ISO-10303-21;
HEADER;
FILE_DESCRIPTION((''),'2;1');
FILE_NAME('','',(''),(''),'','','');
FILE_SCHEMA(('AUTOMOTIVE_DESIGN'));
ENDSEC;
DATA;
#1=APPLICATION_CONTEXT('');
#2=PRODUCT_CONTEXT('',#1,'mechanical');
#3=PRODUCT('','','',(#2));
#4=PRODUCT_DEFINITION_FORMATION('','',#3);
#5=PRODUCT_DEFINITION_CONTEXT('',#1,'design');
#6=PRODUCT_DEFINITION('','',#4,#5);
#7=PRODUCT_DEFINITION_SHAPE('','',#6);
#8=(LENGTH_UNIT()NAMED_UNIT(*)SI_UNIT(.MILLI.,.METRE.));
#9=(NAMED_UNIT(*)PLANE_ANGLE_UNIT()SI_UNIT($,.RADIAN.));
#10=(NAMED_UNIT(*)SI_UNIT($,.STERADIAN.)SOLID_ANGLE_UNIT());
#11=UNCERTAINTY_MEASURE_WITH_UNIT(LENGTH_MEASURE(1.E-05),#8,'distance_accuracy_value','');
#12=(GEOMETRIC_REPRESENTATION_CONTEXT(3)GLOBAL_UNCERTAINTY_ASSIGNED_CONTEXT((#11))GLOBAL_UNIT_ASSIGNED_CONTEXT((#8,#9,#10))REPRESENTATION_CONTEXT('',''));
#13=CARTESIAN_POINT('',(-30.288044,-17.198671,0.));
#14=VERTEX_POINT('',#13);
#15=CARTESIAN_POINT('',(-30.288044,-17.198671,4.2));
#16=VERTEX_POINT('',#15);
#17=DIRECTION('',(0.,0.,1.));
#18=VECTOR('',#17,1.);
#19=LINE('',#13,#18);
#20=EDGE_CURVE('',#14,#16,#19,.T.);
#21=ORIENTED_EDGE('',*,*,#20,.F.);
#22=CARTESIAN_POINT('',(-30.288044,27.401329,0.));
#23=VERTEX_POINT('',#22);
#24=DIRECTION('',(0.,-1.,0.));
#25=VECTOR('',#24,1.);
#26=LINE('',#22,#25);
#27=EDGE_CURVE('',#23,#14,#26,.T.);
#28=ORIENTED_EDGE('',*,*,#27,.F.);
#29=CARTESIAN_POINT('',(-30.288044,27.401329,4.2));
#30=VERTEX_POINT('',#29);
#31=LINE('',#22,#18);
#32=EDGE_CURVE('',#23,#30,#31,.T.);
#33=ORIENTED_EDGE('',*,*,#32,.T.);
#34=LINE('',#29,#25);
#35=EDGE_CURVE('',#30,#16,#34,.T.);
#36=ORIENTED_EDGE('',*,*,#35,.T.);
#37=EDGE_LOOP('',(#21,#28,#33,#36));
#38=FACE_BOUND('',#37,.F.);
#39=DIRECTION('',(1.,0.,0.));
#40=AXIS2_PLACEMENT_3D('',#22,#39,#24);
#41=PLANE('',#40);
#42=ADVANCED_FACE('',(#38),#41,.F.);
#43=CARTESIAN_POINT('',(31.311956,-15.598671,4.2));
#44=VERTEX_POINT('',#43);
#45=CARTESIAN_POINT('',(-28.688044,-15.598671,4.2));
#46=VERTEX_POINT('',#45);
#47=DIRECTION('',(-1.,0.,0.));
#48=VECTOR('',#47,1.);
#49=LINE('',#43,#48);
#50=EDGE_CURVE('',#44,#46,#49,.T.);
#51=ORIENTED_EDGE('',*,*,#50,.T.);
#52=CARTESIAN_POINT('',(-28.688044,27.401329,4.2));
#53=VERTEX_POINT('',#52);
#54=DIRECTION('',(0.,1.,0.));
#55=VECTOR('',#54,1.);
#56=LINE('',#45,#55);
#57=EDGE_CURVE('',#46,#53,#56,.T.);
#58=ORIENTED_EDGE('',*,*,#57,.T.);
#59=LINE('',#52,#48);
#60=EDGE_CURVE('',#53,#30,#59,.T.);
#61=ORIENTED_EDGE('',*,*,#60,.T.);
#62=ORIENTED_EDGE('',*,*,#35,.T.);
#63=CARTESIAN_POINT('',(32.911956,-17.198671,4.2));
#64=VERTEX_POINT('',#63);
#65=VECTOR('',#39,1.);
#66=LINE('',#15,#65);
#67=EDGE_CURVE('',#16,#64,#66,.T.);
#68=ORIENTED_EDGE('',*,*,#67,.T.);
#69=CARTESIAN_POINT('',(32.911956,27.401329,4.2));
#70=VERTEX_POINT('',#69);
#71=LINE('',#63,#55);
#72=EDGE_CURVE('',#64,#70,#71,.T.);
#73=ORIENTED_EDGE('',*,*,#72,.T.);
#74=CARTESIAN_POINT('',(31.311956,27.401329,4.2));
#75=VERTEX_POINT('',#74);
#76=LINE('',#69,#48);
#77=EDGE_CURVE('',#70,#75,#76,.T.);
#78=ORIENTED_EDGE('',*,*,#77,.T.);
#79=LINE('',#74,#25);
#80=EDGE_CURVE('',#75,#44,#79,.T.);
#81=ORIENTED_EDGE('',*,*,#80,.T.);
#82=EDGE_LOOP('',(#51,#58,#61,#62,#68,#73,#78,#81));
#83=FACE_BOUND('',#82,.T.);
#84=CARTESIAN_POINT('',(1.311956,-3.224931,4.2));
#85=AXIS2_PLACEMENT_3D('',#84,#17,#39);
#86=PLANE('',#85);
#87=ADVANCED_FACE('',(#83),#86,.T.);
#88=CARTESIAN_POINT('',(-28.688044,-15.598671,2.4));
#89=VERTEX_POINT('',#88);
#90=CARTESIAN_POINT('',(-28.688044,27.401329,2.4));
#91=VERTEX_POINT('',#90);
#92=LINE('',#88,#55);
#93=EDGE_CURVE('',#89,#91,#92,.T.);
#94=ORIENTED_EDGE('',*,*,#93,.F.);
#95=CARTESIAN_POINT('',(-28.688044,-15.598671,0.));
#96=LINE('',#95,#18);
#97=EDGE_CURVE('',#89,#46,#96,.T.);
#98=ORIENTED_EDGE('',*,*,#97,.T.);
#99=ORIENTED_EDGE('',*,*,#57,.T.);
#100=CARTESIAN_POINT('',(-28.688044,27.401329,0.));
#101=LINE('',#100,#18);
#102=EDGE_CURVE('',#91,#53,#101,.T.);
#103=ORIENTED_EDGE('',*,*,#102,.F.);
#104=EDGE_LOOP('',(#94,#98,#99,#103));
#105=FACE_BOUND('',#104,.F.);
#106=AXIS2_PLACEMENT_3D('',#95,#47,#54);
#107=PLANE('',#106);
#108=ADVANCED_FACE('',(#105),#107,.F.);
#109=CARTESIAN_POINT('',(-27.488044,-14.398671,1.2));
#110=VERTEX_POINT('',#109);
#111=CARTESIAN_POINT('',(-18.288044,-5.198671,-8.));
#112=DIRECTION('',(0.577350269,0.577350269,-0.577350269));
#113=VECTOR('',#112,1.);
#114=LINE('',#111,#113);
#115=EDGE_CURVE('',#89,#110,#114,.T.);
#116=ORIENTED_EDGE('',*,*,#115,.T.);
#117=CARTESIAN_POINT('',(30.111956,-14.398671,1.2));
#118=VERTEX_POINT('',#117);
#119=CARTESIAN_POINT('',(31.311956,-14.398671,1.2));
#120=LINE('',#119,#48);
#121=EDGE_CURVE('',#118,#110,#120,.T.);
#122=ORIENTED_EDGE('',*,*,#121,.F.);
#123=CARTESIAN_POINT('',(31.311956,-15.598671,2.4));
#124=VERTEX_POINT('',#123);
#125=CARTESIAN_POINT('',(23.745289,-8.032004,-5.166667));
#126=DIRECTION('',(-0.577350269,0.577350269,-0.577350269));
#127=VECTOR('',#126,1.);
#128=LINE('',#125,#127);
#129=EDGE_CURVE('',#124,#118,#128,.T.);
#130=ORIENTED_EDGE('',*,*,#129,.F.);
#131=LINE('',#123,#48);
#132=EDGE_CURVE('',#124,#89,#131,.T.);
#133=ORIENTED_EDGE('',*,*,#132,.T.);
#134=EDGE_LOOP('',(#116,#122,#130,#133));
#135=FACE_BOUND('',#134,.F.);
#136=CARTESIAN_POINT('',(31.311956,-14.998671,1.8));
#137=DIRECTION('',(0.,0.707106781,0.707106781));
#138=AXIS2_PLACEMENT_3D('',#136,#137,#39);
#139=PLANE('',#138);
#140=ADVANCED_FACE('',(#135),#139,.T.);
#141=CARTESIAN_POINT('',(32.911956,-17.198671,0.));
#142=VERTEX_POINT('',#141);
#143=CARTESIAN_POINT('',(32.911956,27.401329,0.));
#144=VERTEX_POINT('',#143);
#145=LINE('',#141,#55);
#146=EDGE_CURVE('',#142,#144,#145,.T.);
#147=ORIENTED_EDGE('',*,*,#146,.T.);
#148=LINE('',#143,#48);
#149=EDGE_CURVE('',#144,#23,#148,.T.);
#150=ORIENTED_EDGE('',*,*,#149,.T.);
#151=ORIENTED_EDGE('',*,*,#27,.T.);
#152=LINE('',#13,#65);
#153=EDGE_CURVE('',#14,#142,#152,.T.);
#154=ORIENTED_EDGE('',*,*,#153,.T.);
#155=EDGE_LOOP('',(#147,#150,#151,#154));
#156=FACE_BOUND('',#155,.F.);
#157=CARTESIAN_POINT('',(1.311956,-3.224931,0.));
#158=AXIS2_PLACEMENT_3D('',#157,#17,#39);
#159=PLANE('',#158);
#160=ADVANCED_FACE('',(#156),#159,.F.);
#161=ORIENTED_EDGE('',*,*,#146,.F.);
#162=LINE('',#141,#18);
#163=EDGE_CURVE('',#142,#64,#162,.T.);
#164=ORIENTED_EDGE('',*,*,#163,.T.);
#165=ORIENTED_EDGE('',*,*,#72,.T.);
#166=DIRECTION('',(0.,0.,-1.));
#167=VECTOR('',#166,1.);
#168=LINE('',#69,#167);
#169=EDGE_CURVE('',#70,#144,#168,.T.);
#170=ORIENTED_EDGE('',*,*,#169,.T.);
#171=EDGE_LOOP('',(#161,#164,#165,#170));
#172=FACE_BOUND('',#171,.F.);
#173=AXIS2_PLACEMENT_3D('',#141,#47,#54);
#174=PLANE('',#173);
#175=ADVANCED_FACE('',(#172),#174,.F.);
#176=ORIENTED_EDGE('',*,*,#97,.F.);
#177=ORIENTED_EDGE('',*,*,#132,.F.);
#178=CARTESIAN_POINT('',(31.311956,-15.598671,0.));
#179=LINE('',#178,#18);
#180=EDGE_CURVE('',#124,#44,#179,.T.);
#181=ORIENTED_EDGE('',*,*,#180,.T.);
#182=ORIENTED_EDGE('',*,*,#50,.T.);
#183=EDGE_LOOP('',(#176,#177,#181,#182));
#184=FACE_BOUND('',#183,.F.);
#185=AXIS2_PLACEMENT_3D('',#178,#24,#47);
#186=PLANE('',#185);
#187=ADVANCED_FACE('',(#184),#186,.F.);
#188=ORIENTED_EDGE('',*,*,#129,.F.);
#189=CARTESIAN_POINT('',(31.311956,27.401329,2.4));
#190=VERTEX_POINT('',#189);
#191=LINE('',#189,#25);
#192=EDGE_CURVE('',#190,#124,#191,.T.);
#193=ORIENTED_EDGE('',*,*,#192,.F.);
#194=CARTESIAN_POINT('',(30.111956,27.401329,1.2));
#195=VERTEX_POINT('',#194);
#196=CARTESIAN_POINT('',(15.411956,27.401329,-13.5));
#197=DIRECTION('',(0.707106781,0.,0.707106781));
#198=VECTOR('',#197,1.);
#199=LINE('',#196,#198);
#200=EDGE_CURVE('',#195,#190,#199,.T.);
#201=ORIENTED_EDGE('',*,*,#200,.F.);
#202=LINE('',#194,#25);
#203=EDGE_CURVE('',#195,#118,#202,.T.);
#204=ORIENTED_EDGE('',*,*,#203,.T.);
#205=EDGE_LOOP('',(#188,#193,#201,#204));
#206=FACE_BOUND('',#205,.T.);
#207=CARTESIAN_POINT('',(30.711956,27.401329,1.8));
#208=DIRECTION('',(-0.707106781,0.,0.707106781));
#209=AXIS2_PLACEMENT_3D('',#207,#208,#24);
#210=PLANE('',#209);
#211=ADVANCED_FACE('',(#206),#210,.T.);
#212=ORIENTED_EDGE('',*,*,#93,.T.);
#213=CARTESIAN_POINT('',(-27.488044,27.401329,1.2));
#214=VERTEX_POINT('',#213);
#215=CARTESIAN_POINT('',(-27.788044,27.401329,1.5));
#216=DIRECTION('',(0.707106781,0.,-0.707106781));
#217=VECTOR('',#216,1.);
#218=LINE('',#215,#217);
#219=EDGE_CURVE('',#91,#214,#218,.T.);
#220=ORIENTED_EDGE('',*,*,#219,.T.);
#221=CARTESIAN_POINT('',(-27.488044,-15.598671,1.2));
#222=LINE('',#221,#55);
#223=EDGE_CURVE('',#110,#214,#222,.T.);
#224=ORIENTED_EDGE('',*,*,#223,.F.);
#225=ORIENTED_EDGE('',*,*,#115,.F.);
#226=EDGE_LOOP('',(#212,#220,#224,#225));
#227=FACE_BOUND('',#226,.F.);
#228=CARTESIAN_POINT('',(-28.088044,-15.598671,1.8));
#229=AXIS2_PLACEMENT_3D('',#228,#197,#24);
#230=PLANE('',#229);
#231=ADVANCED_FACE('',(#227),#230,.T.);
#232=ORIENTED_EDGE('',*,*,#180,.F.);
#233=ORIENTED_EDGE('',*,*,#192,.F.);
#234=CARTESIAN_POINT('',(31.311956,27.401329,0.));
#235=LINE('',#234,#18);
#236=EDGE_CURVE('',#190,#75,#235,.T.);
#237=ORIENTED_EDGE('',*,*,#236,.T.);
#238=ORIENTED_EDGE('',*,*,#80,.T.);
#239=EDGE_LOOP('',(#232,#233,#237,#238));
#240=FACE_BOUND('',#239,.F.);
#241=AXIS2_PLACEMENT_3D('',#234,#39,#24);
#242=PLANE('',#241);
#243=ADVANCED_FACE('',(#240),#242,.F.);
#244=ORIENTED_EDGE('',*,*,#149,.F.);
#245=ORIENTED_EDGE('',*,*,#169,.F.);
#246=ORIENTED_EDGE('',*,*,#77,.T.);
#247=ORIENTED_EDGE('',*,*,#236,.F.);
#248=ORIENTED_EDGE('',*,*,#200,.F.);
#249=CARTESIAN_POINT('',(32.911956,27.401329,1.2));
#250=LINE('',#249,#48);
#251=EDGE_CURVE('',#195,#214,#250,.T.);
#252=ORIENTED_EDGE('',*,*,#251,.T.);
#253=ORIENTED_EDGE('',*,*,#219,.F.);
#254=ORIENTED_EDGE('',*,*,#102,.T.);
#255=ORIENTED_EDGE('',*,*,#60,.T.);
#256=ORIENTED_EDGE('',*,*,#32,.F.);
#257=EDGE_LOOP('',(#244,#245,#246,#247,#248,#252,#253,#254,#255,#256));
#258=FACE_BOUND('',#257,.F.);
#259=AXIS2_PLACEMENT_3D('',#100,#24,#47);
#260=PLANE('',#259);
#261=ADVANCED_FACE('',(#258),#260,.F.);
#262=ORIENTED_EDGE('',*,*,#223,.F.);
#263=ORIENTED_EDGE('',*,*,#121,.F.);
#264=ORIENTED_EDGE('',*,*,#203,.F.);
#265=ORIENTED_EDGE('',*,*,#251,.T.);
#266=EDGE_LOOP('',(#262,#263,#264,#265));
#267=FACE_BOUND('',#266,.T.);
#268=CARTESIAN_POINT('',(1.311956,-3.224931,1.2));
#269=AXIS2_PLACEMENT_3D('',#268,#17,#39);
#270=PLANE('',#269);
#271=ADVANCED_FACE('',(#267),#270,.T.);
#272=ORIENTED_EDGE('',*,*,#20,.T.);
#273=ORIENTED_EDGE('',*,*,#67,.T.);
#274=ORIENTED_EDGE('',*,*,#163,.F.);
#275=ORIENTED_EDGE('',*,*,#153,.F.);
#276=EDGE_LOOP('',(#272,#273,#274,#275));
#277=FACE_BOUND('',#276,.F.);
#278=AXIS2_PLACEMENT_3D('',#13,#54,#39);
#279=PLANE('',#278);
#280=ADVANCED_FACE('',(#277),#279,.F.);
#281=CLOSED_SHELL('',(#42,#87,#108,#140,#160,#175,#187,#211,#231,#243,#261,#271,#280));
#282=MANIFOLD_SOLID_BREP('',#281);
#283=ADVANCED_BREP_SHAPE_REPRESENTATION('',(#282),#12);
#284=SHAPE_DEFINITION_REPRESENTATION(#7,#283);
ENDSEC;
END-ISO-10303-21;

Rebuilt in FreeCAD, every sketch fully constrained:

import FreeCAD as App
import Part
import Sketcher
Q = App.Units.Quantity


def edges_at(feature, points):
    """Names of the edges that pass closest to the given points."""
    edges = feature.Shape.Edges
    near = lambda p: min(range(len(edges)), key=lambda i: edges[i].distToShape(Part.Vertex(*p))[0])
    return sorted({f"Edge{near(p) + 1}" for p in points})

doc = App.newDocument("Part")
body = doc.addObject("PartDesign::Body", "Body")

# Sketch on XY plane
sketch1 = doc.addObject("Sketcher::SketchObject", "Sketch")
body.addObject(sketch1)
sketch1.AttachmentSupport = (doc.XY_Plane, [""])
sketch1.MapMode = "FlatFace"
sketch1.addGeometry(Part.LineSegment(App.Vector(-28.7, 27.4, 0), App.Vector(-30.3, 27.4, 0)), False)
sketch1.addGeometry(Part.LineSegment(App.Vector(-30.3, 27.4, 0), App.Vector(-30.3, -17.2, 0)), False)
sketch1.addGeometry(Part.LineSegment(App.Vector(-30.3, -17.2, 0), App.Vector(32.9, -17.2, 0)), False)
sketch1.addGeometry(Part.LineSegment(App.Vector(32.9, -17.2, 0), App.Vector(32.9, 27.4, 0)), False)
sketch1.addGeometry(Part.LineSegment(App.Vector(32.9, 27.4, 0), App.Vector(31.3, 27.4, 0)), False)
sketch1.addGeometry(Part.LineSegment(App.Vector(31.3, 27.4, 0), App.Vector(31.3, -15.6, 0)), False)
sketch1.addGeometry(Part.LineSegment(App.Vector(31.3, -15.6, 0), App.Vector(-28.7, -15.6, 0)), False)
sketch1.addGeometry(Part.LineSegment(App.Vector(-28.7, -15.6, 0), App.Vector(-28.7, 27.4, 0)), False)
sketch1.addConstraint(Sketcher.Constraint("Coincident", 0, 2, 1, 1))
sketch1.addConstraint(Sketcher.Constraint("Coincident", 1, 2, 2, 1))
sketch1.addConstraint(Sketcher.Constraint("Coincident", 2, 2, 3, 1))
sketch1.addConstraint(Sketcher.Constraint("Coincident", 3, 2, 4, 1))
sketch1.addConstraint(Sketcher.Constraint("Coincident", 4, 2, 5, 1))
sketch1.addConstraint(Sketcher.Constraint("Coincident", 5, 2, 6, 1))
sketch1.addConstraint(Sketcher.Constraint("Coincident", 6, 2, 7, 1))
sketch1.addConstraint(Sketcher.Constraint("Coincident", 7, 2, 0, 1))
sketch1.addConstraint(Sketcher.Constraint("Horizontal", 0))
sketch1.addConstraint(Sketcher.Constraint("Vertical", 1))
sketch1.addConstraint(Sketcher.Constraint("Horizontal", 2))
sketch1.addConstraint(Sketcher.Constraint("Vertical", 3))
sketch1.addConstraint(Sketcher.Constraint("Horizontal", 4))
sketch1.addConstraint(Sketcher.Constraint("Vertical", 5))
sketch1.addConstraint(Sketcher.Constraint("Horizontal", 6))
sketch1.addConstraint(Sketcher.Constraint("Vertical", 7))
sketch1.addConstraint(Sketcher.Constraint("Horizontal", 0, 2, 3, 2))
sketch1.addConstraint(Sketcher.Constraint("Equal", 0, 4))
sketch1.addConstraint(Sketcher.Constraint("DistanceX", 6, 2, 6, 1, Q("60 mm")))
sketch1.addConstraint(Sketcher.Constraint("DistanceY", 5, 2, 5, 1, Q("43 mm")))
sketch1.addConstraint(Sketcher.Constraint("DistanceX", 0, 2, 0, 1, Q("1.6 mm")))
sketch1.addConstraint(Sketcher.Constraint("DistanceY", 1, 2, 1, 1, Q("44.6 mm")))
sketch1.addConstraint(Sketcher.Constraint("DistanceY", -1, 1, 0, 2, Q("27.401329 mm")))
sketch1.addConstraint(Sketcher.Constraint("DistanceX", 0, 2, -1, 1, Q("30.288044 mm")))
pad1 = doc.addObject("PartDesign::Pad", "Pad")
body.addObject(pad1)
pad1.Profile = sketch1
pad1.Length = 4.2

# Sketch on XY plane
sketch2 = doc.addObject("Sketcher::SketchObject", "Sketch001")
body.addObject(sketch2)
sketch2.AttachmentSupport = (doc.XY_Plane, [""])
sketch2.MapMode = "FlatFace"
sketch2.addGeometry(Part.LineSegment(App.Vector(-30, 27, 0), App.Vector(-30, -17, 0)), False)
sketch2.addGeometry(Part.LineSegment(App.Vector(-30, -17, 0), App.Vector(33, -17, 0)), False)
sketch2.addGeometry(Part.LineSegment(App.Vector(33, -17, 0), App.Vector(33, 27, 0)), False)
sketch2.addGeometry(Part.LineSegment(App.Vector(33, 27, 0), App.Vector(-30, 27, 0)), False)
sketch2.addConstraint(Sketcher.Constraint("Coincident", 0, 2, 1, 1))
sketch2.addConstraint(Sketcher.Constraint("Coincident", 1, 2, 2, 1))
sketch2.addConstraint(Sketcher.Constraint("Coincident", 2, 2, 3, 1))
sketch2.addConstraint(Sketcher.Constraint("Coincident", 3, 2, 0, 1))
sketch2.addConstraint(Sketcher.Constraint("Vertical", 0))
sketch2.addConstraint(Sketcher.Constraint("Horizontal", 1))
sketch2.addConstraint(Sketcher.Constraint("Vertical", 2))
sketch2.addConstraint(Sketcher.Constraint("Horizontal", 3))
sketch2.addConstraint(Sketcher.Constraint("DistanceX", 1, 1, 1, 2, Q("63.2 mm")))
sketch2.addConstraint(Sketcher.Constraint("DistanceY", 0, 2, 0, 1, Q("44.6 mm")))
sketch2.addConstraint(Sketcher.Constraint("DistanceY", 0, 2, -1, 1, Q("17.198671 mm")))
sketch2.addConstraint(Sketcher.Constraint("DistanceX", 0, 2, -1, 1, Q("30.288044 mm")))
pad2 = doc.addObject("PartDesign::Pad", "Pad001")
body.addObject(pad2)
pad2.Profile = sketch2
pad2.Length = 1.2
doc.recompute()

chamfer = doc.addObject("PartDesign::Chamfer", "Chamfer")
body.addObject(chamfer)
chamfer.Base = (pad2, edges_at(pad2, [(-28.688, 5.901, 1.2), (1.312, -15.599, 1.2), (31.312, 5.901, 1.2)]))
chamfer.Size = 1.2

doc.recompute()
